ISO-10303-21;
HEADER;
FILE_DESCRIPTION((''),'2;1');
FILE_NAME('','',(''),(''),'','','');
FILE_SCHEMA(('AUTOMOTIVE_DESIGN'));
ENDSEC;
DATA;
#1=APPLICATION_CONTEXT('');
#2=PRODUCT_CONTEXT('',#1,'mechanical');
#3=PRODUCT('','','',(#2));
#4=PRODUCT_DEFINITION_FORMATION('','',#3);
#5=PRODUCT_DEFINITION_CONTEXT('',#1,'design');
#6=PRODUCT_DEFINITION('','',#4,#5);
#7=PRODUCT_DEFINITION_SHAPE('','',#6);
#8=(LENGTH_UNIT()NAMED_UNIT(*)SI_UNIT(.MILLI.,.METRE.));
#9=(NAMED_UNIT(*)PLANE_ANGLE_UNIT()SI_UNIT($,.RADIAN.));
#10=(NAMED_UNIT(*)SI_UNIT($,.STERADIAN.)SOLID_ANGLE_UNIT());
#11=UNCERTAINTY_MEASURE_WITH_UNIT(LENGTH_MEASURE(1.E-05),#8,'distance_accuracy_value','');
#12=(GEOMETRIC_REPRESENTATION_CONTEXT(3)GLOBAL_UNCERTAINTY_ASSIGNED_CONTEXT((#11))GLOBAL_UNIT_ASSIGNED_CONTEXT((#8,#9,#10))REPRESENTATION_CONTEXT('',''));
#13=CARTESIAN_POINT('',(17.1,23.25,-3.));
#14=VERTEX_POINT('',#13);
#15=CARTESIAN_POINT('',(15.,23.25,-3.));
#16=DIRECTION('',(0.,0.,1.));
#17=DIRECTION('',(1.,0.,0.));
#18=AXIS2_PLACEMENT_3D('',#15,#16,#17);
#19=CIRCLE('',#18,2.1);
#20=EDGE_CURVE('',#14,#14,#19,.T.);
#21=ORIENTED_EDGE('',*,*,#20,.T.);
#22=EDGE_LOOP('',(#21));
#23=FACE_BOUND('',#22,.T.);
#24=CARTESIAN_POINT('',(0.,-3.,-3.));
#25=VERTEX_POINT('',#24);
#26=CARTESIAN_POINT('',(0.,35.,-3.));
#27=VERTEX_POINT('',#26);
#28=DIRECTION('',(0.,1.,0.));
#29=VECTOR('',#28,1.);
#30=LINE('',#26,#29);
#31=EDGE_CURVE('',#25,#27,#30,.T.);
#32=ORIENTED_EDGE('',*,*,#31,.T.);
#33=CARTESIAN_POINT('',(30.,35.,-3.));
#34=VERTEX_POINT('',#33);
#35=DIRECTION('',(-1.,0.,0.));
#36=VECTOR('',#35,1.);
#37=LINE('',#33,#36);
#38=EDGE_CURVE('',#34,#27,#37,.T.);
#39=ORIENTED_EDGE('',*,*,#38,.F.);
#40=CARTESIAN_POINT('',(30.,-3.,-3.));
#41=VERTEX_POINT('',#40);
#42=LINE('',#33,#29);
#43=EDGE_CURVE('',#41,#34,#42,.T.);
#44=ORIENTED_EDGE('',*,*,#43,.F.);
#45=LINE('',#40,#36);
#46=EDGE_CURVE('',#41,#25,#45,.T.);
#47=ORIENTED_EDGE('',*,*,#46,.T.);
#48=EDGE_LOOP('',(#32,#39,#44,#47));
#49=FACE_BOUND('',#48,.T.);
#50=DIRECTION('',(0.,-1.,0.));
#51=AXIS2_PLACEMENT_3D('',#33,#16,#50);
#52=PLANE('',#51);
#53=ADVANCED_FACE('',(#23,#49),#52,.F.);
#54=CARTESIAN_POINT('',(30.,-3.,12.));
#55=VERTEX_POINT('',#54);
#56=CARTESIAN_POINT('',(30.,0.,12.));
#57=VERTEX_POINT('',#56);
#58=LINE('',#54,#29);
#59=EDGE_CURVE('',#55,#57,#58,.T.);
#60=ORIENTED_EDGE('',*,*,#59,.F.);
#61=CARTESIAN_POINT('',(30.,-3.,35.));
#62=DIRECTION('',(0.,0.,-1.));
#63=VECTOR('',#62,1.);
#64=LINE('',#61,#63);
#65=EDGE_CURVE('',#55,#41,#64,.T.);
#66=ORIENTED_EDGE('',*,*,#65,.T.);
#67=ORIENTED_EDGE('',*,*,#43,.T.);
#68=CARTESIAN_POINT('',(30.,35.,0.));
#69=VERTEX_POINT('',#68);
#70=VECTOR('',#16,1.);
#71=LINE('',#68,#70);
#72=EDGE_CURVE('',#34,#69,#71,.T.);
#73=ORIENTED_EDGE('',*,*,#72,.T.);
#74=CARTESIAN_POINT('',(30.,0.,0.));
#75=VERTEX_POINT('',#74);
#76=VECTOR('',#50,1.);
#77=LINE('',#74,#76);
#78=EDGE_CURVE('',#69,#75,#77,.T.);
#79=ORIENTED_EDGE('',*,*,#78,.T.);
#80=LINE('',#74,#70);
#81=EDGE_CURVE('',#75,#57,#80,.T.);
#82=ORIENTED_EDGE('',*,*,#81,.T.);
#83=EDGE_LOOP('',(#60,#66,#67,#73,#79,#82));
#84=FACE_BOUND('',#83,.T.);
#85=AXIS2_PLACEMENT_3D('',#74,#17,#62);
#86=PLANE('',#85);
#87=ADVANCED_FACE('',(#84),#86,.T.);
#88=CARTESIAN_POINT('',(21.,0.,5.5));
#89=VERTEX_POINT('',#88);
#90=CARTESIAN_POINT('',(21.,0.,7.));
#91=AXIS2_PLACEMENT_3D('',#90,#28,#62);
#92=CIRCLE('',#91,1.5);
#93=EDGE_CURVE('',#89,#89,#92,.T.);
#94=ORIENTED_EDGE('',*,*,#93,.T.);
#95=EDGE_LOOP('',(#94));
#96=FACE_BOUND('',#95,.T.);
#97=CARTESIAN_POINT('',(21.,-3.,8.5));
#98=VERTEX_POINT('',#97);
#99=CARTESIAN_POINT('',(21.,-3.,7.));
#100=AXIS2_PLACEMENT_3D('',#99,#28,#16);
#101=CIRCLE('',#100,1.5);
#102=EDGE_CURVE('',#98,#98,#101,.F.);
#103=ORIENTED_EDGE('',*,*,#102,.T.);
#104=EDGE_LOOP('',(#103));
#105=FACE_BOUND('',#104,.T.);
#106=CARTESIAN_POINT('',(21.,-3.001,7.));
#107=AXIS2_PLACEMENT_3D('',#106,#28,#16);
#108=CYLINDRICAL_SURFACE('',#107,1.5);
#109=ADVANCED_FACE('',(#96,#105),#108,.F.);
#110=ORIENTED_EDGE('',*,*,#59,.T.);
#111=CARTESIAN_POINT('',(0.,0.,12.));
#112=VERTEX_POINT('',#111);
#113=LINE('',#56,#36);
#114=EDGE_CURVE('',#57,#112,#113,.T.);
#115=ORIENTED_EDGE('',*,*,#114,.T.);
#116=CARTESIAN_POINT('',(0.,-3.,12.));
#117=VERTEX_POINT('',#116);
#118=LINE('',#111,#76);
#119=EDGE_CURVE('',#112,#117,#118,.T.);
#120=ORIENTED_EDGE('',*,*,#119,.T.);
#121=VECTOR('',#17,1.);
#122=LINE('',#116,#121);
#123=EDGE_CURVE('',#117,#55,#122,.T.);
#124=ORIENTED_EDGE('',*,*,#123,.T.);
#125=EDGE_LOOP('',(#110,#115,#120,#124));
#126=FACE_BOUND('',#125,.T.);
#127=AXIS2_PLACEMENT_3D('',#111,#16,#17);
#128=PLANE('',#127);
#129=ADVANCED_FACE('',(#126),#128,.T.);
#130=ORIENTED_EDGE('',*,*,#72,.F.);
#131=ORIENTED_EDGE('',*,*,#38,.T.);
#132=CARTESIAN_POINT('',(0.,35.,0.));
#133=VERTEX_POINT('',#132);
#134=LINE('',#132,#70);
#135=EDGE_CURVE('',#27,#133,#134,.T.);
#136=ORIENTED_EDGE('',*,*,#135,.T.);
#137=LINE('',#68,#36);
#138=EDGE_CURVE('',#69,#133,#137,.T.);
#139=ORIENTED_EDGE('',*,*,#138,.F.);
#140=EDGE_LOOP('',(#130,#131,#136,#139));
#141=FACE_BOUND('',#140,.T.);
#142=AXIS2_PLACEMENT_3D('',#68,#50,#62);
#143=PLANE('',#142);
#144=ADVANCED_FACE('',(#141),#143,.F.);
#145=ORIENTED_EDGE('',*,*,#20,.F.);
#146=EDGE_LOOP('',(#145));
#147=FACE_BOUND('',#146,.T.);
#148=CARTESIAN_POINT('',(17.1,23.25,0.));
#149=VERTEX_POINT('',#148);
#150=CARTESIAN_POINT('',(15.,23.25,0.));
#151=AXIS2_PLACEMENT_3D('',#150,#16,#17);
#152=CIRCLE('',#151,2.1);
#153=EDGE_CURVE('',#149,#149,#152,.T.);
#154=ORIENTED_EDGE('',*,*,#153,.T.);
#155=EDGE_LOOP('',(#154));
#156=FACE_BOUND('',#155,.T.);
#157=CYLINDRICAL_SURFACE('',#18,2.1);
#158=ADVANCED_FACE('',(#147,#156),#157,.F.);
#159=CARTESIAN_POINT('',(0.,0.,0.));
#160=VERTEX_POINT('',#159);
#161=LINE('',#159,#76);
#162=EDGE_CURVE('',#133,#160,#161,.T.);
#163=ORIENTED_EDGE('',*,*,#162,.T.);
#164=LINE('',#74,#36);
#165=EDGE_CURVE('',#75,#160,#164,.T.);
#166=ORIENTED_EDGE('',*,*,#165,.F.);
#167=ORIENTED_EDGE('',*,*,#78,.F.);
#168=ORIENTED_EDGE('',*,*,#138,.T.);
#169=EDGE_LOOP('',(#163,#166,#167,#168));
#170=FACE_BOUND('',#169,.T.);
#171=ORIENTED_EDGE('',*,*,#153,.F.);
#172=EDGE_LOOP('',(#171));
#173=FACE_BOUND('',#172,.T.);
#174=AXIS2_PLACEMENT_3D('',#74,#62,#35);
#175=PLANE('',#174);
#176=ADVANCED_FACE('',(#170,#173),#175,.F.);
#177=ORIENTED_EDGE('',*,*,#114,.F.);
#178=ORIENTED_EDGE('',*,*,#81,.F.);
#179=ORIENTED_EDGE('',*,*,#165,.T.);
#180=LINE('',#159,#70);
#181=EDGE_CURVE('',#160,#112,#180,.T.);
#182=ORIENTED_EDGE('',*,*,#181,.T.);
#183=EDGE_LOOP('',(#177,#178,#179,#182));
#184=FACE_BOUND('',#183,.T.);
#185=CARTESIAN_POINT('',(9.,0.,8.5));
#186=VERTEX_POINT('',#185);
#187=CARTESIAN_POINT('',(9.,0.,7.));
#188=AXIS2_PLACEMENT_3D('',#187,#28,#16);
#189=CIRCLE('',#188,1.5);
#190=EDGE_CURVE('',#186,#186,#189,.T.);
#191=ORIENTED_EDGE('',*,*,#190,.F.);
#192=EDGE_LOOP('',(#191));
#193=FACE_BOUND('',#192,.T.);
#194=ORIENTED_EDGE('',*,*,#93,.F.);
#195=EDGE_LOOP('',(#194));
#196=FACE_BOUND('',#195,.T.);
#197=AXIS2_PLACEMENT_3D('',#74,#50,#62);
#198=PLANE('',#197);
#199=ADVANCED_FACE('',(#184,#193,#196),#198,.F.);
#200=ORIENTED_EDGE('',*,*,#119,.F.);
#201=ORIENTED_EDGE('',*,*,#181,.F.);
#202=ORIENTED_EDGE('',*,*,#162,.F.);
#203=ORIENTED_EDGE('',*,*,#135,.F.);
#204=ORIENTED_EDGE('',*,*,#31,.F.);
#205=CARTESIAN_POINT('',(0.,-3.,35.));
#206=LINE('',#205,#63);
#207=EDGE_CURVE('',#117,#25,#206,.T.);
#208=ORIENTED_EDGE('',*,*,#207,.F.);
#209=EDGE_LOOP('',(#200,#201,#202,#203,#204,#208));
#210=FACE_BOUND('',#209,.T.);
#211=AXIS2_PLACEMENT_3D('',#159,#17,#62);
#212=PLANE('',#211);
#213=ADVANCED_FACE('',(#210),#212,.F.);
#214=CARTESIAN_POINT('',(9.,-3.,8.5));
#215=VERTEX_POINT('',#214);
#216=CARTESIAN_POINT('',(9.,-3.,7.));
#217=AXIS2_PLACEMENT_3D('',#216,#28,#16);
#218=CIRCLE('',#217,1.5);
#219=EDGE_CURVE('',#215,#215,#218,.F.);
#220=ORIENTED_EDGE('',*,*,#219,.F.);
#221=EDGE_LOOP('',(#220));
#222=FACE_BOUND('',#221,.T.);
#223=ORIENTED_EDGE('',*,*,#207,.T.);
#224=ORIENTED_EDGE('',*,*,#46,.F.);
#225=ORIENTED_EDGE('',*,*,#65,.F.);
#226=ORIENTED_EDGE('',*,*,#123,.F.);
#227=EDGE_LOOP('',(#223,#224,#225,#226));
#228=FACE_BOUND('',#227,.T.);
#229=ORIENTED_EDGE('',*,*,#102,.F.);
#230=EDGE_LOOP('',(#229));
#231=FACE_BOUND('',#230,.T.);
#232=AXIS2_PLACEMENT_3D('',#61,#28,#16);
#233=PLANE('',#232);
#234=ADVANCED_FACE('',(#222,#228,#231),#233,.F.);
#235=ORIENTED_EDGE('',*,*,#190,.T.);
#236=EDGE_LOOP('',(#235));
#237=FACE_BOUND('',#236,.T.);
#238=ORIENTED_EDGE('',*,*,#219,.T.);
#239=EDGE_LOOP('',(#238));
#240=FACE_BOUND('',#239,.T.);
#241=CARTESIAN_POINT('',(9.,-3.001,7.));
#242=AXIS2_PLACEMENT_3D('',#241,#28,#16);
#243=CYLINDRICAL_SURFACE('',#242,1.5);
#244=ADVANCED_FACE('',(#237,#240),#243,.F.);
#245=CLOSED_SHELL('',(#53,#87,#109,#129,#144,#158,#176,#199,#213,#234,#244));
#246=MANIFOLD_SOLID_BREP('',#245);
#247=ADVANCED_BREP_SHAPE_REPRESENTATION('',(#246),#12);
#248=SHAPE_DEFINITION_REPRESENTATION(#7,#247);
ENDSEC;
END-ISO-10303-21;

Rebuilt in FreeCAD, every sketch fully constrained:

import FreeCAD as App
import Part
import Sketcher

V = App.Vector
Q = App.Units.Quantity


def add_polygon(sketch, points):
    """Adds a closed chain of lines whose ends are joined by coincident constraints."""
    first, n = sketch.GeometryCount, len(points)
    for a, b in zip(points, points[1:] + points[:1]):
        sketch.addGeometry(Part.LineSegment(App.Vector(*a, 0), App.Vector(*b, 0)), False)
    for i in range(n):
        sketch.addConstraint(Sketcher.Constraint("Coincident", first + i, 2, first + (i + 1) % n, 1))

doc = App.newDocument("Part")
body = doc.addObject("PartDesign::Body", "Body")

sketch1 = body.newObject("Sketcher::SketchObject", "Sketch")
sketch1.AttachmentSupport = (doc.getObject("YZ_Plane"), [""])
sketch1.MapMode = "FlatFace"
add_polygon(sketch1, [(35, 0), (0, 0), (0, 35), (-3, 35), (-3, -3), (35, -3)])
sketch1.addConstraint([
    Sketcher.Constraint("Horizontal", 0),
    Sketcher.Constraint("Vertical", 1),
    Sketcher.Constraint("Horizontal", 2),
    Sketcher.Constraint("Vertical", 3),
    Sketcher.Constraint("Horizontal", 4),
    Sketcher.Constraint("Vertical", 5),
    Sketcher.Constraint("Coincident", 0, 2, -1, 1),
    Sketcher.Constraint("Equal", 0, 1),
    Sketcher.Constraint("Equal", 4, 3),
    Sketcher.Constraint("DistanceX", 0, 2, 0, 1, Q("35 mm")),
    Sketcher.Constraint("DistanceX", 2, 2, 2, 1, Q("3 mm")),
])
pad1 = body.newObject("PartDesign::Pad", "Pad")
pad1.Profile = sketch1
pad1.Length = 30

sketch2 = body.newObject("Sketcher::SketchObject", "Sketch001")
sketch2.AttachmentSupport = (doc.getObject("XZ_Plane"), [""])
sketch2.MapMode = "FlatFace"
sketch2.addGeometry(Part.Circle(V(9, 7, 0), V(0, 0, 1), 1.5), False)
sketch2.addConstraint([
    Sketcher.Constraint("Diameter", 0, Q("3 mm")),
    Sketcher.Constraint("DistanceX", -1, 1, 0, 3, Q("9 mm")),
    Sketcher.Constraint("DistanceY", -1, 1, 0, 3, Q("7 mm")),
])
pocket1 = body.newObject("PartDesign::Pocket", "Pocket")
pocket1.Profile = sketch2
pocket1.Type = "UpToFirst"
pocket1.Reversed = True

sketch3 = body.newObject("Sketcher::SketchObject", "Sketch002")
sketch3.AttachmentSupport = (doc.getObject("XZ_Plane"), [""])
sketch3.MapMode = "FlatFace"
sketch3.addGeometry(Part.Circle(V(9, 19, 0), V(0, 0, 1), 1.5), False)
sketch3.addConstraint([
    Sketcher.Constraint("Diameter", 0, Q("3 mm")),
    Sketcher.Constraint("DistanceX", -1, 1, 0, 3, Q("9 mm")),
    Sketcher.Constraint("DistanceY", -1, 1, 0, 3, Q("19 mm")),
])
pocket2 = body.newObject("PartDesign::Pocket", "Pocket001")
pocket2.Profile = sketch3
pocket2.Type = "UpToFirst"
pocket2.Reversed = True

sketch4 = body.newObject("Sketcher::SketchObject", "Sketch003")
sketch4.AttachmentSupport = (doc.getObject("XZ_Plane"), [""])
sketch4.MapMode = "FlatFace"
sketch4.addGeometry(Part.Circle(V(21, 19, 0), V(0, 0, 1), 1.5), False)
sketch4.addConstraint([
    Sketcher.Constraint("Diameter", 0, Q("3 mm")),
    Sketcher.Constraint("DistanceX", -1, 1, 0, 3, Q("21 mm")),
    Sketcher.Constraint("DistanceY", -1, 1, 0, 3, Q("19 mm")),
])
pocket3 = body.newObject("PartDesign::Pocket", "Pocket002")
pocket3.Profile = sketch4
pocket3.Type = "UpToFirst"
pocket3.Reversed = True

sketch5 = body.newObject("Sketcher::SketchObject", "Sketch004")
sketch5.AttachmentSupport = (doc.getObject("XZ_Plane"), [""])
sketch5.MapMode = "FlatFace"
sketch5.addGeometry(Part.Circle(V(21, 7, 0), V(0, 0, 1), 1.5), False)
sketch5.addConstraint([
    Sketcher.Constraint("Diameter", 0, Q("3 mm")),
    Sketcher.Constraint("DistanceX", -1, 1, 0, 3, Q("21 mm")),
    Sketcher.Constraint("DistanceY", -1, 1, 0, 3, Q("7 mm")),
])
pocket4 = body.newObject("PartDesign::Pocket", "Pocket003")
pocket4.Profile = sketch5
pocket4.Type = "UpToFirst"
pocket4.Reversed = True

sketch6 = body.newObject("Sketcher::SketchObject", "Sketch005")
sketch6.AttachmentSupport = (doc.getObject("XZ_Plane"), [""])
sketch6.MapMode = "FlatFace"
add_polygon(sketch6, [(0, 25), (0, 35), (30, 35), (30, 25)])
sketch6.addConstraint([
    Sketcher.Constraint("Vertical", 0),
    Sketcher.Constraint("Horizontal", 1),
    Sketcher.Constraint("Vertical", 2),
    Sketcher.Constraint("Horizontal", 3),
    Sketcher.Constraint("PointOnObject", 0, 2, -2),
    Sketcher.Constraint("DistanceX", 1, 1, 1, 2, Q("30 mm")),
    Sketcher.Constraint("DistanceY", 0, 1, 0, 2, Q("10 mm")),
    Sketcher.Constraint("DistanceY", -1, 1, 0, 2, Q("35 mm")),
])
pocket5 = body.newObject("PartDesign::Pocket", "Pocket004")
pocket5.Profile = sketch6
pocket5.Type = "UpToFirst"
pocket5.Reversed = True

sketch7 = body.newObject("Sketcher::SketchObject", "Sketch006")
sketch7.AttachmentSupport = (doc.getObject("XY_Plane"), [""])
sketch7.MapMode = "FlatFace"
sketch7.addGeometry(Part.Circle(V(15, 23.2, 0), V(0, 0, 1), 2.1), False)
sketch7.addConstraint([
    Sketcher.Constraint("Diameter", 0, Q("4.2 mm")),
    Sketcher.Constraint("DistanceX", -1, 1, 0, 3, Q("15 mm")),
    Sketcher.Constraint("DistanceY", -1, 1, 0, 3, Q("23.25 mm")),
])
pocket6 = body.newObject("PartDesign::Pocket", "Pocket005")
pocket6.Profile = sketch7
pocket6.Type = "ThroughAll"

sketch8 = body.newObject("Sketcher::SketchObject", "Sketch007")
sketch8.AttachmentSupport = (doc.getObject("XY_Plane"), [""])
sketch8.MapMode = "FlatFace"
sketch8.AttachmentOffset = App.Placement(V(0, 0, 25), App.Rotation())
add_polygon(sketch8, [(0, 0), (0, -3), (30, -3), (30, 0)])
sketch8.addConstraint([
    Sketcher.Constraint("Vertical", 0),
    Sketcher.Constraint("Horizontal", 1),
    Sketcher.Constraint("Vertical", 2),
    Sketcher.Constraint("Horizontal", 3),
    Sketcher.Constraint("Coincident", 3, 2, -1, 1),
    Sketcher.Constraint("DistanceX", 1, 1, 1, 2, Q("30 mm")),
    Sketcher.Constraint("DistanceY", 0, 2, 0, 1, Q("3 mm")),
])
pocket7 = body.newObject("PartDesign::Pocket", "Pocket006")
pocket7.Profile = sketch8
pocket7.Length = 13

doc.recompute()
